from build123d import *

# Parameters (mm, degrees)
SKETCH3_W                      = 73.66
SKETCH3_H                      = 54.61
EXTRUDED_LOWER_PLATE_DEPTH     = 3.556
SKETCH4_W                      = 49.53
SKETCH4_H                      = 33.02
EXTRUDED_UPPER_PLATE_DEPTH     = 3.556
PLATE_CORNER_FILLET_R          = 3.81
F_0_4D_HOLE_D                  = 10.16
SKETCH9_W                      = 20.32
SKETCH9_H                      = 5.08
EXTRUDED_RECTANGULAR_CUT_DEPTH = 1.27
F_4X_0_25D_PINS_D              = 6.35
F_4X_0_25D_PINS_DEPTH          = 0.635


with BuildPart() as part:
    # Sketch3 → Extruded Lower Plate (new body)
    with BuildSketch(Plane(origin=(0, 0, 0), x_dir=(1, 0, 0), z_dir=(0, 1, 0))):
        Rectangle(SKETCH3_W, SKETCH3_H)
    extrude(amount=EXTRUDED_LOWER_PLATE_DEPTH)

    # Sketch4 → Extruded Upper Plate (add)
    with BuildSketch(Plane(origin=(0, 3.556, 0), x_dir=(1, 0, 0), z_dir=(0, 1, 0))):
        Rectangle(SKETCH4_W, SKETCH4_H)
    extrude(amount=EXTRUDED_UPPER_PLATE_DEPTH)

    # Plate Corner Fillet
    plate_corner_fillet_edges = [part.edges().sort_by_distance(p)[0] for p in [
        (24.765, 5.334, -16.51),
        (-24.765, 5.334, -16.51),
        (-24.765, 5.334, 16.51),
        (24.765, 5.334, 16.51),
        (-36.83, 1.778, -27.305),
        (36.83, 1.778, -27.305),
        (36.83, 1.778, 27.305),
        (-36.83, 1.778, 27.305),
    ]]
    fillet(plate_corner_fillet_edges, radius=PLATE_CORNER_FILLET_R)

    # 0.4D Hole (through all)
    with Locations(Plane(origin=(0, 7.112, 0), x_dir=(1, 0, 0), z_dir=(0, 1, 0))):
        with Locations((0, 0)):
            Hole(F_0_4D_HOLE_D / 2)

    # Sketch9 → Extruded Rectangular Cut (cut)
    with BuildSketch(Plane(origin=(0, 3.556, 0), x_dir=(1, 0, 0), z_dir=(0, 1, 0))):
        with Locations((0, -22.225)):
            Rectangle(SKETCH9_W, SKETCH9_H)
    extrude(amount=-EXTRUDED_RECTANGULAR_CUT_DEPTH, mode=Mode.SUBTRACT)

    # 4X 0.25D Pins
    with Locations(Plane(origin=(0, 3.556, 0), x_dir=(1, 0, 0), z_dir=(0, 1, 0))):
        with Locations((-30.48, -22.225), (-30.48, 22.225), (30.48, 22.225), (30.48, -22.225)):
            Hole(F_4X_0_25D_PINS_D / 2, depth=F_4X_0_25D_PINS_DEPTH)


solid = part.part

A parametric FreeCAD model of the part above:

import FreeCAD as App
import Part
import Sketcher

V = App.Vector
Q = App.Units.Quantity


def edges_at(feature, points):
    """Names of the edges that pass closest to the given points."""
    edges = feature.Shape.Edges
    near = lambda p: min(range(len(edges)), key=lambda i: edges[i].distToShape(Part.Vertex(*p))[0])
    return sorted({f"Edge{near(p) + 1}" for p in points})


def add_polygon(sketch, points):
    """Adds a closed chain of lines whose ends are joined by coincident constraints."""
    first, n = sketch.GeometryCount, len(points)
    for a, b in zip(points, points[1:] + points[:1]):
        sketch.addGeometry(Part.LineSegment(App.Vector(*a, 0), App.Vector(*b, 0)), False)
    for i in range(n):
        sketch.addConstraint(Sketcher.Constraint("Coincident", first + i, 2, first + (i + 1) % n, 1))

doc = App.newDocument("Part")
params = doc.addObject("Spreadsheet::Sheet", "Params")
for row, (alias, value) in enumerate([
    ("sketch1_width", "2.9 in"),
    ("sketch1_height", "2.15 in"),
    ("pad1_length", "0.14 in"),
    ("sketch2_height", "1.3 in"),
    ("sketch2_width", "1.95 in"),
    ("pad2_length", "0.14 in"),
    ("fillet_radius", "0.15 in"),
    ("sketch3_diameter", "0.4 in"),
    ("hole_diameter", "0.4 in"),
    ("sketch4_width", "0.8 in"),
    ("sketch4_height", "0.2 in"),
    ("pocket1_length", "0.05 in"),
    ("sketch5_diameter", "0.25 in"),
    ("hole2_diameter", "0.25 in"),
    ("hole2_depth", "0.025 in"),
], start=1):
    params.set(f"A{row}", alias)
    params.set(f"B{row}", "=" + value)
    params.setAlias(f"B{row}", alias)

body = doc.addObject("PartDesign::Body", "Body")

sketch1 = body.newObject("Sketcher::SketchObject", "Sketch")
sketch1.AttachmentSupport = (doc.getObject("XZ_Plane"), [""])
sketch1.MapMode = "FlatFace"
add_polygon(sketch1, [(-37, -27), (-37, 27), (37, 27), (37, -27)])
sketch1.addConstraint(Sketcher.Constraint("Vertical", 0))
sketch1.addConstraint(Sketcher.Constraint("Horizontal", 1))
sketch1.addConstraint(Sketcher.Constraint("Vertical", 2))
sketch1.addConstraint(Sketcher.Constraint("Horizontal", 3))
sketch1.addConstraint(Sketcher.Constraint("Symmetric", 0, 2, 2, 2, -1, 1))
sketch1.addConstraint(Sketcher.Constraint("DistanceX", 1, 1, 1, 2, Q("2.9 in")))
sketch1.addConstraint(Sketcher.Constraint("DistanceY", 0, 1, 0, 2, Q("2.15 in")))
sketch1.setExpression("Constraints[9]", "Params.sketch1_width")
sketch1.setExpression("Constraints[10]", "Params.sketch1_height")
pad1 = body.newObject("PartDesign::Pad", "Pad")
pad1.Profile = sketch1
pad1.setExpression("Length", "Params.pad1_length")
pad1.Reversed = True

sketch2 = body.newObject("Sketcher::SketchObject", "Sketch001")
sketch2.AttachmentSupport = (doc.getObject("XZ_Plane"), [""])
sketch2.MapMode = "FlatFace"
sketch2.AttachmentOffset = App.Placement(V(0, 0, -0.14 * 25.4), App.Rotation())
add_polygon(sketch2, [(-25, -17), (-25, 17), (25, 17), (25, -17)])
sketch2.addConstraint(Sketcher.Constraint("Vertical", 0))
sketch2.addConstraint(Sketcher.Constraint("Horizontal", 1))
sketch2.addConstraint(Sketcher.Constraint("Vertical", 2))
sketch2.addConstraint(Sketcher.Constraint("Horizontal", 3))
sketch2.addConstraint(Sketcher.Constraint("Symmetric", 0, 2, 2, 2, -1, 1))
sketch2.addConstraint(Sketcher.Constraint("DistanceY", 0, 1, 0, 2, Q("1.3 in")))
sketch2.addConstraint(Sketcher.Constraint("DistanceX", 1, 1, 1, 2, Q("1.95 in")))
sketch2.setExpression("Constraints[9]", "Params.sketch2_height")
sketch2.setExpression("Constraints[10]", "Params.sketch2_width")
pad2 = body.newObject("PartDesign::Pad", "Pad001")
pad2.Profile = sketch2
pad2.setExpression("Length", "Params.pad2_length")
pad2.Reversed = True
doc.recompute()

fillet = body.newObject("PartDesign::Fillet", "Fillet")
fillet.Base = (pad2, edges_at(pad2, [
    (24.765, 5.334, -16.51),
    (-24.765, 5.334, -16.51),
    (-24.765, 5.334, 16.51),
    (24.765, 5.334, 16.51),
    (-36.83, 1.778, -27.305),
    (36.83, 1.778, -27.305),
    (36.83, 1.778, 27.305),
    (-36.83, 1.778, 27.305),
]))
fillet.setExpression("Radius", "Params.fillet_radius")

sketch3 = body.newObject("Sketcher::SketchObject", "Sketch002")
sketch3.AttachmentSupport = (doc.getObject("XZ_Plane"), [""])
sketch3.MapMode = "FlatFace"
sketch3.AttachmentOffset = App.Placement(V(0, 0, -0.28 * 25.4), App.Rotation())
sketch3.addGeometry(Part.Circle(V(0, 0, 0), V(0, 0, 1), 5), False)
sketch3.addConstraint(Sketcher.Constraint("Coincident", 0, 3, -1, 1))
sketch3.addConstraint(Sketcher.Constraint("Diameter", 0, Q("0.4 in")))
sketch3.setExpression("Constraints[1]", "Params.sketch3_diameter")
doc.recompute()
hole = body.newObject("PartDesign::Hole", "Hole")
hole.Profile = sketch3
hole.ThreadType = "None"
hole.setExpression("Diameter", "Params.hole_diameter")
hole.DepthType = "ThroughAll"
hole.Reversed = True

sketch4 = body.newObject("Sketcher::SketchObject", "Sketch003")
sketch4.AttachmentSupport = (doc.getObject("XZ_Plane"), [""])
sketch4.MapMode = "FlatFace"
sketch4.AttachmentOffset = App.Placement(V(0, 0, -0.14 * 25.4), App.Rotation())
add_polygon(sketch4, [(-10, 20), (-10, 25), (10, 25), (10, 20)])
sketch4.addConstraint(Sketcher.Constraint("Vertical", 0))
sketch4.addConstraint(Sketcher.Constraint("Horizontal", 1))
sketch4.addConstraint(Sketcher.Constraint("Vertical", 2))
sketch4.addConstraint(Sketcher.Constraint("Horizontal", 3))
sketch4.addConstraint(Sketcher.Constraint("DistanceX", 1, 1, 1, 2, Q("0.8 in")))
sketch4.addConstraint(Sketcher.Constraint("DistanceY", 0, 1, 0, 2, Q("0.2 in")))
sketch4.addConstraint(Sketcher.Constraint("DistanceX", 0, 2, -1, 1, Q("0.4 in")))
sketch4.addConstraint(Sketcher.Constraint("DistanceY", -1, 1, 0, 2, Q("0.975 in")))
sketch4.setExpression("Constraints[8]", "Params.sketch4_width")
sketch4.setExpression("Constraints[9]", "Params.sketch4_height")
pocket1 = body.newObject("PartDesign::Pocket", "Pocket")
pocket1.Profile = sketch4
pocket1.setExpression("Length", "Params.pocket1_length")
pocket1.Reversed = True

sketch5 = body.newObject("Sketcher::SketchObject", "Sketch004")
sketch5.AttachmentSupport = (doc.getObject("XZ_Plane"), [""])
sketch5.MapMode = "FlatFace"
sketch5.AttachmentOffset = App.Placement(V(0, 0, -0.14 * 25.4), App.Rotation())
sketch5.addGeometry(Part.Circle(V(-30.5, 22.2, 0), V(0, 0, 1), 3.2), False)
sketch5.addGeometry(Part.Circle(V(-30.5, -22.2, 0), V(0, 0, 1), 3.2), False)
sketch5.addGeometry(Part.Circle(V(30.5, -22.2, 0), V(0, 0, 1), 3.2), False)
sketch5.addGeometry(Part.Circle(V(30.5, 22.2, 0), V(0, 0, 1), 3.2), False)
sketch5.addConstraint(Sketcher.Constraint("Equal", 0, 1))
sketch5.addConstraint(Sketcher.Constraint("Equal", 1, 2))
sketch5.addConstraint(Sketcher.Constraint("Equal", 2, 3))
sketch5.addConstraint(Sketcher.Constraint("Symmetric", 0, 3, 2, 3, -1, 1))
sketch5.addConstraint(Sketcher.Constraint("Symmetric", 1, 3, 3, 3, -1, 1))
sketch5.addConstraint(Sketcher.Constraint("Symmetric", 1, 3, 2, 3, -2))
sketch5.addConstraint(Sketcher.Constraint("Diameter", 0, Q("0.25 in")))
sketch5.addConstraint(Sketcher.Constraint("DistanceX", 0, 3, -1, 1, Q("1.2 in")))
sketch5.addConstraint(Sketcher.Constraint("DistanceY", 1, 3, 0, 3, Q("1.75 in")))
sketch5.setExpression("Constraints[6]", "Params.sketch5_diameter")
doc.recompute()
hole2 = body.newObject("PartDesign::Hole", "Hole001")
hole2.Profile = sketch5
hole2.ThreadType = "None"
hole2.setExpression("Diameter", "Params.hole2_diameter")
hole2.DepthType = "Dimension"
hole2.setExpression("Depth", "Params.hole2_depth")
hole2.DrillPoint = "Flat"
hole2.Reversed = True

doc.recompute()
